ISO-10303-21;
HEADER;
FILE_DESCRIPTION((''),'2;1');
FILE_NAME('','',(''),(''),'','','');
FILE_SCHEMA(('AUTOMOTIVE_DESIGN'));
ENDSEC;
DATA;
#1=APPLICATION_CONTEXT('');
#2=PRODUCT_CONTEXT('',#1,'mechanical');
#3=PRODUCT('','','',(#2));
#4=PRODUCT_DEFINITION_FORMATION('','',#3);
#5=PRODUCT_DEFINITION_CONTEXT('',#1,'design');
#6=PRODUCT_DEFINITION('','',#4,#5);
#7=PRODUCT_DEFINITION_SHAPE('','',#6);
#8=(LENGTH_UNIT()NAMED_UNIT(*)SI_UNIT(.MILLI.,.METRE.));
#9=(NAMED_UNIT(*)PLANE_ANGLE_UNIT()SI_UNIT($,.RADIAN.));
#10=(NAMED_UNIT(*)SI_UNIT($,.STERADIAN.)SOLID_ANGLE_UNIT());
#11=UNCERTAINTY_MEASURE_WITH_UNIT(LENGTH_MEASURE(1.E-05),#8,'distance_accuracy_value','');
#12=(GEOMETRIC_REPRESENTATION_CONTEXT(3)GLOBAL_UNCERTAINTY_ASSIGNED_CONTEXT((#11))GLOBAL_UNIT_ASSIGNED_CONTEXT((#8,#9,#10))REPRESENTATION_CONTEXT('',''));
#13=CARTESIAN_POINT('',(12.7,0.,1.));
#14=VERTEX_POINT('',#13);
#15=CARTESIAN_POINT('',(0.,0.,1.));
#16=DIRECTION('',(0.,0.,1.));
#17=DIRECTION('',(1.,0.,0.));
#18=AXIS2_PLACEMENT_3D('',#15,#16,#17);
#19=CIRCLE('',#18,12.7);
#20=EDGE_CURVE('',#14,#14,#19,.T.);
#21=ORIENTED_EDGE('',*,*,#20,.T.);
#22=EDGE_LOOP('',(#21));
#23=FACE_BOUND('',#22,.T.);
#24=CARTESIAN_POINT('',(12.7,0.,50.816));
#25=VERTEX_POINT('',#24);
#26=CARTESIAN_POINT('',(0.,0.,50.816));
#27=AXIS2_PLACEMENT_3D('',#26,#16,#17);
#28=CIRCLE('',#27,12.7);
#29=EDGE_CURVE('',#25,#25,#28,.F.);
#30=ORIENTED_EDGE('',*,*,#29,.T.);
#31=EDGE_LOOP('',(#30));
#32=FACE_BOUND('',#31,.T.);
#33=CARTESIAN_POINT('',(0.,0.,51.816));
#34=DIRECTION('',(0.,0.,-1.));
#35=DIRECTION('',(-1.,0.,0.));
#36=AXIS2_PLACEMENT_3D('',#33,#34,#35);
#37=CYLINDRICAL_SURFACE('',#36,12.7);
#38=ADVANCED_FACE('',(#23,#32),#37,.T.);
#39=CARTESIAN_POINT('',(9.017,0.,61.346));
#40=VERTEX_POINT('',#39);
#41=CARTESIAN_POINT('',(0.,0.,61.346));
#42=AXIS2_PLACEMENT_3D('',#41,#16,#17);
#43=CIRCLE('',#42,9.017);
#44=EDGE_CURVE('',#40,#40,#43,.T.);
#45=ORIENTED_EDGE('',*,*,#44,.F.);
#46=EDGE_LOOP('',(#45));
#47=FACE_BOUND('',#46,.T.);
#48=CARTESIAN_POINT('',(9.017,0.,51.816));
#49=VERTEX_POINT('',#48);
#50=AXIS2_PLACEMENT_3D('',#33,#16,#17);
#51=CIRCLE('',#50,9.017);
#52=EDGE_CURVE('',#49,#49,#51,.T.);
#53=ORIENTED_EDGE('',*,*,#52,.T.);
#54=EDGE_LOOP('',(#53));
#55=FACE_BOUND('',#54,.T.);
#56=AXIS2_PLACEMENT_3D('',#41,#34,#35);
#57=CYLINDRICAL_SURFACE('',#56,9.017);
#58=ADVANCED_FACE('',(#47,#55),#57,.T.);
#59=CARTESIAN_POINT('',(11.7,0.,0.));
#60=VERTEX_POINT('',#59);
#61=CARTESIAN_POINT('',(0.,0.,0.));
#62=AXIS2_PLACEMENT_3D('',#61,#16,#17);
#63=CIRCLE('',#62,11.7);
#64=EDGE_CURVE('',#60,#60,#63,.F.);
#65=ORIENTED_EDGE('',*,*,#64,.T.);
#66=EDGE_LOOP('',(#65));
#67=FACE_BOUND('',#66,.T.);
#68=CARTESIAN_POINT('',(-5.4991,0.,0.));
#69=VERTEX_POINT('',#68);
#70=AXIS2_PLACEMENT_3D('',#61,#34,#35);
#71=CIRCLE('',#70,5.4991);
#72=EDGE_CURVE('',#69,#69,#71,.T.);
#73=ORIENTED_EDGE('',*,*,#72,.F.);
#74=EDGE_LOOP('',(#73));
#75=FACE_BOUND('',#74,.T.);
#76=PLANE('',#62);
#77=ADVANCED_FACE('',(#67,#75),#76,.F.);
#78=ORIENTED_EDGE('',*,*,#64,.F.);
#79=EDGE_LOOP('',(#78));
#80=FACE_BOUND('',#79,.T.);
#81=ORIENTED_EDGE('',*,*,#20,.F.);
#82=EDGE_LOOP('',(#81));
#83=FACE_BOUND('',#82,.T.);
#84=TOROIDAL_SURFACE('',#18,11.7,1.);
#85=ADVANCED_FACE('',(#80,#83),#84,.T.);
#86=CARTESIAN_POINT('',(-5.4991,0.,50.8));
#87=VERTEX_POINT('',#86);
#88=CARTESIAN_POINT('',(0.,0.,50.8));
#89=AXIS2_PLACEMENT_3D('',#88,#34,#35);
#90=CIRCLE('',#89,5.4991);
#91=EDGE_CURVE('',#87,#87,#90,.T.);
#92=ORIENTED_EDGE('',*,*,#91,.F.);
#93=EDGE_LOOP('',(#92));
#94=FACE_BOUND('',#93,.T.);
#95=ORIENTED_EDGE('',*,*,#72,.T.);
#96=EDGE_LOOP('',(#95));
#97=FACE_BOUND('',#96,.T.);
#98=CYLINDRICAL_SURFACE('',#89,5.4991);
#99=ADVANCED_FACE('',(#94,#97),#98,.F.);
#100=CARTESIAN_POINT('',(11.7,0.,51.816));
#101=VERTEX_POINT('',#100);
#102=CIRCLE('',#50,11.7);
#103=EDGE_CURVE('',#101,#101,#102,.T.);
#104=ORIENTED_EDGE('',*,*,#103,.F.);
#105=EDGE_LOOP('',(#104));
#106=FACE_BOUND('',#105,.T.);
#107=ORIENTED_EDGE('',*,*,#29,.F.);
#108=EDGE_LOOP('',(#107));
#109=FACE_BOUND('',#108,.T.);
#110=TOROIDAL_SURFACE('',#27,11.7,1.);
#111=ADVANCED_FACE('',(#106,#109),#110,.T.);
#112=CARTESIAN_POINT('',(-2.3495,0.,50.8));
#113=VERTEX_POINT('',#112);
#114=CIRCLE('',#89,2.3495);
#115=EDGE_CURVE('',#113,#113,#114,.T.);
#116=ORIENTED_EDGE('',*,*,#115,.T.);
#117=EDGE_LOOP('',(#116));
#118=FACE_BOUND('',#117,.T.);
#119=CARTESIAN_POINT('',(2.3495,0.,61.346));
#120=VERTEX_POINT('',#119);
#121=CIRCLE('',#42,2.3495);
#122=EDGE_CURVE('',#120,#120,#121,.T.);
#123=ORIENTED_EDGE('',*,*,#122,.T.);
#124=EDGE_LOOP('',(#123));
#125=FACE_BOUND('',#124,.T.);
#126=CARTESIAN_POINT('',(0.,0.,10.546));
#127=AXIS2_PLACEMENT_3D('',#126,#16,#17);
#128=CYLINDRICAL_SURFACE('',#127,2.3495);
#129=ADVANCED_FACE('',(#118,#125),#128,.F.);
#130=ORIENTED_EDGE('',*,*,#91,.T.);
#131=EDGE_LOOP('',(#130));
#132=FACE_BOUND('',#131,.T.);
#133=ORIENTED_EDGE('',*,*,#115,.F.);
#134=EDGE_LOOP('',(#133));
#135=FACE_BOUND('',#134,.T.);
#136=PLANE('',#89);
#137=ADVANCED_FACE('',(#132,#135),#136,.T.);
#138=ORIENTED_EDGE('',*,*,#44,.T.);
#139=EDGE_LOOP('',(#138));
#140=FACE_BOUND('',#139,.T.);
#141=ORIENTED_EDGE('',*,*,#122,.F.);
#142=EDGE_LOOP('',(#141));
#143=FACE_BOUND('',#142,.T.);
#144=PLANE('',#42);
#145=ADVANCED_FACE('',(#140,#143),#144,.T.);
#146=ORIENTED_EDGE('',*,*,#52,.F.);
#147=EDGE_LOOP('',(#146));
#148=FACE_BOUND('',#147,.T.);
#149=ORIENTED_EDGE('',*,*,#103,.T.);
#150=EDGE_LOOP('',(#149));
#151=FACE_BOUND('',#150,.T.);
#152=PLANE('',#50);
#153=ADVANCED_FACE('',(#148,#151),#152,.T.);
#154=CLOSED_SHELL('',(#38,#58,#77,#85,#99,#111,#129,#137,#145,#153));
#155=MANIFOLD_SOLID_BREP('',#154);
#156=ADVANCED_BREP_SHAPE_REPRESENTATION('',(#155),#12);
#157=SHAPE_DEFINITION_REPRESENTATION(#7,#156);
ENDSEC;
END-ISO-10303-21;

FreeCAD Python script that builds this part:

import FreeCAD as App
import Part
import Sketcher

V = App.Vector
Q = App.Units.Quantity


def edges_at(feature, points):
    """Names of the edges that pass closest to the given points."""
    edges = feature.Shape.Edges
    near = lambda p: min(range(len(edges)), key=lambda i: edges[i].distToShape(Part.Vertex(*p))[0])
    return sorted({f"Edge{near(p) + 1}" for p in points})

doc = App.newDocument("Part")
body = doc.addObject("PartDesign::Body", "Body")

sketch1 = doc.addObject("Sketcher::SketchObject", "Sketch")
body.addObject(sketch1)
sketch1.AttachmentSupport = (doc.XY_Plane, [""])
sketch1.MapMode = "FlatFace"
sketch1.addGeometry(Part.Circle(V(0, 0, 0), V(0, 0, 1), 13), False)
sketch1.addConstraint([
    Sketcher.Constraint("Coincident", 0, 3, -1, 1),
    Sketcher.Constraint("Diameter", 0, Q("1 in")),
])
pad1 = doc.addObject("PartDesign::Pad", "Pad")
body.addObject(pad1)
pad1.Profile = sketch1
pad1.Length = Q("2.04 in")
doc.recompute()

fillet = doc.addObject("PartDesign::Fillet", "Fillet")
body.addObject(fillet)
fillet.Base = (pad1, edges_at(pad1, [(-12.7, 0, 0), (-12.7, 0, 51.816)]))
fillet.Radius = 1

sketch2 = doc.addObject("Sketcher::SketchObject", "Sketch001")
body.addObject(sketch2)
sketch2.AttachmentSupport = (doc.XY_Plane, [""])
sketch2.MapMode = "FlatFace"
sketch2.AttachmentOffset = App.Placement(V(0, 0, 2.04 * 25.4), App.Rotation())
sketch2.addGeometry(Part.Circle(V(0, 0, 0), V(0, 0, 1), 9), False)
sketch2.addConstraint([
    Sketcher.Constraint("Coincident", 0, 3, -1, 1),
    Sketcher.Constraint("Diameter", 0, Q("0.71 in")),
])
pad2 = doc.addObject("PartDesign::Pad", "Pad001")
body.addObject(pad2)
pad2.Profile = sketch2
pad2.Length = 9.53

sketch3 = doc.addObject("Sketcher::SketchObject", "Sketch002")
body.addObject(sketch3)
sketch3.AttachmentSupport = (doc.XY_Plane, [""])
sketch3.MapMode = "FlatFace"
sketch3.addGeometry(Part.Circle(V(0, 0, 0), V(0, 0, 1), 5), False)
sketch3.addConstraint([
    Sketcher.Constraint("Coincident", 0, 3, -1, 1),
    Sketcher.Constraint("Diameter", 0, Q("0.433 in")),
])
pocket1 = doc.addObject("PartDesign::Pocket", "Pocket")
body.addObject(pocket1)
pocket1.Profile = sketch3
pocket1.Length = Q("2 in")
pocket1.Reversed = True

sketch4 = doc.addObject("Sketcher::SketchObject", "Sketch003")
body.addObject(sketch4)
sketch4.AttachmentSupport = (doc.XY_Plane, [""])
sketch4.MapMode = "FlatFace"
sketch4.AttachmentOffset = App.Placement(V(0, 0, 61.346), App.Rotation())
sketch4.addGeometry(Part.Circle(V(0, 0, 0), V(0, 0, 1), 2.3), False)
sketch4.addConstraint([
    Sketcher.Constraint("Coincident", 0, 3, -1, 1),
    Sketcher.Constraint("Diameter", 0, Q("0.185 in")),
])
pocket2 = doc.addObject("PartDesign::Pocket", "Pocket001")
body.addObject(pocket2)
pocket2.Profile = sketch4
pocket2.Length = Q("2 in")

doc.recompute()
